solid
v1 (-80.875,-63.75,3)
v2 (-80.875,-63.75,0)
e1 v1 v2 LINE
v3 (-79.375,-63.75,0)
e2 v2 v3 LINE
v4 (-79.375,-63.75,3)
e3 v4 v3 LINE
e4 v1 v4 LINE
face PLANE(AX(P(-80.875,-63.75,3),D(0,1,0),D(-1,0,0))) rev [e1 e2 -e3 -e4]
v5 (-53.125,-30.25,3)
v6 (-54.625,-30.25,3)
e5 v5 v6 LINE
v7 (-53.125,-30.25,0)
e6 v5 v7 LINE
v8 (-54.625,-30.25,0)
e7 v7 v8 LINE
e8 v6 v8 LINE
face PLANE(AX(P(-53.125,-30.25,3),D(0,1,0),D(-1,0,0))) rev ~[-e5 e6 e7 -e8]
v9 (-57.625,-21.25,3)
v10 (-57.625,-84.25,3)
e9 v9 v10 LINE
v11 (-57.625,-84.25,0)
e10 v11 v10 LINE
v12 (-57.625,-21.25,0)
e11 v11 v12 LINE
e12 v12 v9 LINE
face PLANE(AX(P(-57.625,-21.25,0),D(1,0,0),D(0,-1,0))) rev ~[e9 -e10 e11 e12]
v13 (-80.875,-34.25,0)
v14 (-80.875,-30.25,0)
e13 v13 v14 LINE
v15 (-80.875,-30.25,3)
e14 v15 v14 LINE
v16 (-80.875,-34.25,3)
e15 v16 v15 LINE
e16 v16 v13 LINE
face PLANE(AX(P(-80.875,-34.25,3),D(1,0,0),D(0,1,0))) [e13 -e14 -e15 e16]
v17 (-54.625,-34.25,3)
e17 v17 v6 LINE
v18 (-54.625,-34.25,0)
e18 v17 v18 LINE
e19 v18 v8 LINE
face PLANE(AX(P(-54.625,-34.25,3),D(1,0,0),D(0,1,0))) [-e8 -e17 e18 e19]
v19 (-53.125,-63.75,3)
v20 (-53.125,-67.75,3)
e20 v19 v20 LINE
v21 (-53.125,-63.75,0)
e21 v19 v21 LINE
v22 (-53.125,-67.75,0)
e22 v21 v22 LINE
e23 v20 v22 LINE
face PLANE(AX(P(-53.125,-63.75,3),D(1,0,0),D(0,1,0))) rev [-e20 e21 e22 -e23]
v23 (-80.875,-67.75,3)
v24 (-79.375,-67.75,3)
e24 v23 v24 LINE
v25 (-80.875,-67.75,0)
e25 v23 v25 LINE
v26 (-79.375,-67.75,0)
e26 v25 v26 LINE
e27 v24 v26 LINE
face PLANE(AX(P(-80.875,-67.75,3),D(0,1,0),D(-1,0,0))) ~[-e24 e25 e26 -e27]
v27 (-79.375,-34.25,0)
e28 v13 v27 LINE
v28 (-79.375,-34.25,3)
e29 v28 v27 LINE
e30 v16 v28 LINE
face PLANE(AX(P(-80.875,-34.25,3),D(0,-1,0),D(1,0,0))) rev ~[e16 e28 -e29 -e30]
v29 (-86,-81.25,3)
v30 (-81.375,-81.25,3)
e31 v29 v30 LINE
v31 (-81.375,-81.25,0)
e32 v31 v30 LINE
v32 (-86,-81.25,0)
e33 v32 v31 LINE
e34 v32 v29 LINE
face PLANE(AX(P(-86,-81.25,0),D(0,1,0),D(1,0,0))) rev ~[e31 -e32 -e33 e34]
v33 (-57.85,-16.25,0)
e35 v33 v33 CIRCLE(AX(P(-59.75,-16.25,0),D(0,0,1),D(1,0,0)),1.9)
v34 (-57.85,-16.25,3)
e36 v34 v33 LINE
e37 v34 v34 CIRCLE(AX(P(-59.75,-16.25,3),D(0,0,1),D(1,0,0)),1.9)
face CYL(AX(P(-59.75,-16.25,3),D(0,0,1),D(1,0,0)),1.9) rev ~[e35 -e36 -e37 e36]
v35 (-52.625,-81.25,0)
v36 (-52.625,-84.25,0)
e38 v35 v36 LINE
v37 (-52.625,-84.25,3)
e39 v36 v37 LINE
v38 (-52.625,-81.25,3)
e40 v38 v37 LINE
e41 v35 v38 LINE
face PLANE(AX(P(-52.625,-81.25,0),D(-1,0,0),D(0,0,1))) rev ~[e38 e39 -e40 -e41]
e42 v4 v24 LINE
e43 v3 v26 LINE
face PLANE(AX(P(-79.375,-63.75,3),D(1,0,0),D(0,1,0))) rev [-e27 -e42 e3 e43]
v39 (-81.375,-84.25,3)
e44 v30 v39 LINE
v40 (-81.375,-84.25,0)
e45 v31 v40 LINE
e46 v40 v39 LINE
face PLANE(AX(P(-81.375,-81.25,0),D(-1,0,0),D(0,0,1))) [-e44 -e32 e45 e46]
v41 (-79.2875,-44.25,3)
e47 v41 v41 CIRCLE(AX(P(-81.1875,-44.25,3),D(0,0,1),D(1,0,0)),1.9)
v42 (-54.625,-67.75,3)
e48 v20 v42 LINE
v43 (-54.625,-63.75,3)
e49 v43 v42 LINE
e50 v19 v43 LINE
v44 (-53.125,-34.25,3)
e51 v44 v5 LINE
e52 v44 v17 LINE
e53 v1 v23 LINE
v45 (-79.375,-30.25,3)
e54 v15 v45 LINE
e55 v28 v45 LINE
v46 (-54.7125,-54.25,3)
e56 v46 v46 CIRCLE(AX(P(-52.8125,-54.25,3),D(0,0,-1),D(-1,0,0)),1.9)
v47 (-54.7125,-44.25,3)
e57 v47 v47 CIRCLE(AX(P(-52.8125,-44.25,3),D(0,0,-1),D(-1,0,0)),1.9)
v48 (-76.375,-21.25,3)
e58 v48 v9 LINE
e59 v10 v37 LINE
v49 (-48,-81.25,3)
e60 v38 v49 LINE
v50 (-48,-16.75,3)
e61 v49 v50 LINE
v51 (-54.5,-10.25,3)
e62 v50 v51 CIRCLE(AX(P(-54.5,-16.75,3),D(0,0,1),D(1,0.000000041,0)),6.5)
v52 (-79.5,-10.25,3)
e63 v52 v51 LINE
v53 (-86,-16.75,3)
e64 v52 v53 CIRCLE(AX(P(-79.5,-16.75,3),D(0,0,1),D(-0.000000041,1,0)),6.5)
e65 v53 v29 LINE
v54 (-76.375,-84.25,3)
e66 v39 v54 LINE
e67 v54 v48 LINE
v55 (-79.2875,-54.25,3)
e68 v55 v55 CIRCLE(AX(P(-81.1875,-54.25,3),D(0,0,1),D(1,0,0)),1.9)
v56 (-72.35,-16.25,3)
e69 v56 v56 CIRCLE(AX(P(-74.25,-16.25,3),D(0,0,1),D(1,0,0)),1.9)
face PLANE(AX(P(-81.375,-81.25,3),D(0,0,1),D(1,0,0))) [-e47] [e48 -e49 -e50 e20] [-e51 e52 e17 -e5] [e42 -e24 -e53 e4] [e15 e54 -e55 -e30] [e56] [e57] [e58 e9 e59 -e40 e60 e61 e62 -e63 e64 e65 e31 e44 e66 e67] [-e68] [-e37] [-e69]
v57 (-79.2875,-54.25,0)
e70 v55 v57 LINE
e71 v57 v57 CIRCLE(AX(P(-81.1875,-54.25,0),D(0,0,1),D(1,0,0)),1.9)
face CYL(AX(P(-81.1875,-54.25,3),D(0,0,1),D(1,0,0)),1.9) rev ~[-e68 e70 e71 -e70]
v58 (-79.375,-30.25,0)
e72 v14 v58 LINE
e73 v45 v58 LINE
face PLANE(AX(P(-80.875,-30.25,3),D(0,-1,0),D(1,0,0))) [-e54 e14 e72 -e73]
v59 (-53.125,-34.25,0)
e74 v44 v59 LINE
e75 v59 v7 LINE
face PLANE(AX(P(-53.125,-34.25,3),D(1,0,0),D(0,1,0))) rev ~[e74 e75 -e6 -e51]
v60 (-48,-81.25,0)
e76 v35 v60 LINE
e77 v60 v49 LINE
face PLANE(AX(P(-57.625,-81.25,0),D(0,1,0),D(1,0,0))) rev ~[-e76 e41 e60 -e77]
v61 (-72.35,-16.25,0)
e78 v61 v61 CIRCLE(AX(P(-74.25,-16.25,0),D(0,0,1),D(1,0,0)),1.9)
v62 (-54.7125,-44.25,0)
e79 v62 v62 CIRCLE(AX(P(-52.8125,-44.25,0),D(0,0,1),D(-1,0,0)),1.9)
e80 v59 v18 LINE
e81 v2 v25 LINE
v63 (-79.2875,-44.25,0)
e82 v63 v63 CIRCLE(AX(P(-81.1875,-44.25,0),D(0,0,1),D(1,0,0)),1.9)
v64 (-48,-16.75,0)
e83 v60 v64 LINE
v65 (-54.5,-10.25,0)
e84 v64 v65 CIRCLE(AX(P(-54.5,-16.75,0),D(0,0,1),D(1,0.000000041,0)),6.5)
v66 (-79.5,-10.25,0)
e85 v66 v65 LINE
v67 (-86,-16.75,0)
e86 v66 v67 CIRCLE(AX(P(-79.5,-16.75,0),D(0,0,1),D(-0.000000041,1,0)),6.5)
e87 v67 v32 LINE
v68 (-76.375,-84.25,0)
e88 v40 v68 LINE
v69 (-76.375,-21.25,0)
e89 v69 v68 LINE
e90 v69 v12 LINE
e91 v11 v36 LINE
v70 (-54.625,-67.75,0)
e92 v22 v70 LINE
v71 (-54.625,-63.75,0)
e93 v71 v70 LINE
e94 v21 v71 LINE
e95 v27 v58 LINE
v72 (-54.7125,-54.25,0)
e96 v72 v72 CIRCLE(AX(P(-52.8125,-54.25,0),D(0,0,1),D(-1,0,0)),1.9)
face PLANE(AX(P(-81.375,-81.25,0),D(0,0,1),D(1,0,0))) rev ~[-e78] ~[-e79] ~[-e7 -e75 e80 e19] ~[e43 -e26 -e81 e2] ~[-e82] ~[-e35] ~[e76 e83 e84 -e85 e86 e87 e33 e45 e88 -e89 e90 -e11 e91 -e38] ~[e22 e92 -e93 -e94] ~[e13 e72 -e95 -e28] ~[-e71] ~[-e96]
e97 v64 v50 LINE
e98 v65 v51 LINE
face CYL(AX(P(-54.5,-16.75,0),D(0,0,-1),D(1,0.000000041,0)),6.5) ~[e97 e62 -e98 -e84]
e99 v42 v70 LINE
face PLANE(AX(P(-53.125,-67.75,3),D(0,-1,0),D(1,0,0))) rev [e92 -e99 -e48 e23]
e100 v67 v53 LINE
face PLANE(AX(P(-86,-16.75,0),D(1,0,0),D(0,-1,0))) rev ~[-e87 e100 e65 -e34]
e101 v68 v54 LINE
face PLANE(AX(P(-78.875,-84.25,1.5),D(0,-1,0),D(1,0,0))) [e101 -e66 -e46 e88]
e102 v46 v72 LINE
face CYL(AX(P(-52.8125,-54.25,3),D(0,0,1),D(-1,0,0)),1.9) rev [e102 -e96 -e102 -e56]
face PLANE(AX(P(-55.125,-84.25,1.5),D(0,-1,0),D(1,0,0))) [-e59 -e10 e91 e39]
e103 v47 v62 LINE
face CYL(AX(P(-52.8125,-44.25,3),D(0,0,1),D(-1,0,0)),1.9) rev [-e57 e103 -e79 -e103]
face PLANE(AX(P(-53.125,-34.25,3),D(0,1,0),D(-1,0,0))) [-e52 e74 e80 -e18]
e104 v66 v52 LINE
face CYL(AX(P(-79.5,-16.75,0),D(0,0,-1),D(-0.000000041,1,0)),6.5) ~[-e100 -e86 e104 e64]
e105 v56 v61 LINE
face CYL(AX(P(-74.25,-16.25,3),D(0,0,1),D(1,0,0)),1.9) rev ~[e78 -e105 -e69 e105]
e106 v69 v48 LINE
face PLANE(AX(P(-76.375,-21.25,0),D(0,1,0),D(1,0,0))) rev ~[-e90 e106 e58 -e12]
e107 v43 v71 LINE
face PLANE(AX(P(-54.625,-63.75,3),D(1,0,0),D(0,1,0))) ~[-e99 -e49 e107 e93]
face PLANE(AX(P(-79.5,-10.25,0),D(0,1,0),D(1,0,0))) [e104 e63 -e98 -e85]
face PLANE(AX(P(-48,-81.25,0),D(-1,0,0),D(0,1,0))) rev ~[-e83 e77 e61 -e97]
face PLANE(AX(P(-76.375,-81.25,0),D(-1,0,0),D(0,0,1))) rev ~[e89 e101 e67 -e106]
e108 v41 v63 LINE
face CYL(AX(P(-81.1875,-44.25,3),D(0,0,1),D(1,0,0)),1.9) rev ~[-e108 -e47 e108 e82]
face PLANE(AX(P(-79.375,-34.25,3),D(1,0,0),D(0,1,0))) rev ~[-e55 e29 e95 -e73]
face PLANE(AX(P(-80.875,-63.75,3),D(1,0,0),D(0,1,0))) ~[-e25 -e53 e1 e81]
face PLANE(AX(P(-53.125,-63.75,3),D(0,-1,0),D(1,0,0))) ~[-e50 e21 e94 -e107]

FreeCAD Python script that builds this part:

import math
import FreeCAD as App
import Part
import Sketcher

V = App.Vector


def add_polygon(sketch, points):
    """Adds a closed chain of lines whose ends are joined by coincident constraints."""
    first, n = sketch.GeometryCount, len(points)
    for a, b in zip(points, points[1:] + points[:1]):
        sketch.addGeometry(Part.LineSegment(App.Vector(*a, 0), App.Vector(*b, 0)), False)
    for i in range(n):
        sketch.addConstraint(Sketcher.Constraint("Coincident", first + i, 2, first + (i + 1) % n, 1))

doc = App.newDocument("Part")
params = doc.addObject("Spreadsheet::Sheet", "Params")
for row, (alias, value) in enumerate([
    ("sketch1_radius", "6.5 mm"),
    ("sketch1_width", "25 mm"),
    ("sketch1_height", "60 mm"),
    ("sketch1_height2", "64.5 mm"),
    ("sketch1_width2", "18.75 mm"),
    ("pad1_length", "3 mm"),
    ("sketch2_width", "5 mm"),
    ("sketch2_height", "3 mm"),
    ("pad2_length", "3 mm"),
    ("sketch3_height", "4 mm"),
    ("sketch3_width", "1.5 mm"),
    ("sketch4_height", "4 mm"),
    ("sketch4_width", "1.5 mm"),
    ("sketch5_diameter", "3.8 mm"),
    ("sketch6_diameter", "3.8 mm"),
    ("sketch7_diameter", "3.8 mm"),
], start=1):
    params.set(f"A{row}", alias)
    params.set(f"B{row}", "=" + value)
    params.setAlias(f"B{row}", alias)

body = doc.addObject("PartDesign::Body", "Body")

# Sketch on XY plane
sketch1 = body.newObject("Sketcher::SketchObject", "Sketch")
sketch1.AttachmentSupport = (doc.getObject("XY_Plane"), [""])
sketch1.MapMode = "FlatFace"
sketch1.addGeometry([
    Part.LineSegment(V(-19, 32, 0), V(-19, -32, 0)),  # 0
    Part.LineSegment(V(-19, -32, 0), V(-9, -32, 0)),  # 1
    Part.LineSegment(V(-9, -32, 0), V(-9, 28, 0)),  # 2
    Part.LineSegment(V(-9, 28, 0), V(9, 28, 0)),  # 3
    Part.LineSegment(V(9, 28, 0), V(9, -32, 0)),  # 4
    Part.LineSegment(V(9, -32, 0), V(19, -32, 0)),  # 5
    Part.LineSegment(V(19, -32, 0), V(19, 32, 0)),  # 6
    Part.ArcOfCircle(Part.Circle(V(12, 32, 0), V(0, 0, 1), 7), math.radians(0), math.radians(90)),  # 7
    Part.LineSegment(V(12, 39, 0), V(-12, 39, 0)),  # 8
    Part.ArcOfCircle(Part.Circle(V(-12, 32, 0), V(0, 0, 1), 7), math.radians(90), math.radians(180)),  # 9
], False)
sketch1.addConstraint([
    Sketcher.Constraint("Coincident", 0, 2, 1, 1),
    Sketcher.Constraint("Coincident", 1, 2, 2, 1),
    Sketcher.Constraint("Coincident", 2, 2, 3, 1),
    Sketcher.Constraint("Coincident", 3, 2, 4, 1),
    Sketcher.Constraint("Coincident", 4, 2, 5, 1),
    Sketcher.Constraint("Coincident", 5, 2, 6, 1),
    Sketcher.Constraint("Tangent", 6, 2, 7, 1),
    Sketcher.Constraint("Tangent", 7, 2, 8, 1),
    Sketcher.Constraint("Tangent", 8, 2, 9, 1),
    Sketcher.Constraint("Tangent", 9, 2, 0, 1),
    Sketcher.Constraint("Vertical", 0),
    Sketcher.Constraint("Horizontal", 1),
    Sketcher.Constraint("Vertical", 2),
    Sketcher.Constraint("Horizontal", 3),
    Sketcher.Constraint("Vertical", 4),
    Sketcher.Constraint("Horizontal", 5),
    Sketcher.Constraint("Vertical", 6),
    Sketcher.Constraint("Horizontal", 8),
    Sketcher.Constraint("Equal", 7, 9),
    Sketcher.Constraint("Symmetric", 0, 2, 6, 2, -1, 1),
    Sketcher.Constraint("Symmetric", 1, 2, 4, 2, -2),
    Sketcher.Constraint("Radius", 7, 6.5),
    Sketcher.Constraint("DistanceX", 8, 2, 8, 1, 25.0),
    Sketcher.Constraint("DistanceY", 2, 1, 2, 2, 60.0),
    Sketcher.Constraint("DistanceY", 0, 2, 0, 1, 64.5),
    Sketcher.Constraint("DistanceX", 3, 1, 3, 2, 18.75),
])
sketch1.setExpression("Constraints[21]", "Params.sketch1_radius")
sketch1.setExpression("Constraints[22]", "Params.sketch1_width")
sketch1.setExpression("Constraints[23]", "Params.sketch1_height")
sketch1.setExpression("Constraints[24]", "Params.sketch1_height2")
sketch1.setExpression("Constraints[25]", "Params.sketch1_width2")
pad1 = body.newObject("PartDesign::Pad", "Pad")
pad1.Profile = sketch1
pad1.setExpression("Length", "Params.pad1_length")

# Sketch on XZ plane
sketch2 = body.newObject("Sketcher::SketchObject", "Sketch001")
sketch2.AttachmentSupport = (doc.getObject("XZ_Plane"), [""])
sketch2.MapMode = "FlatFace"
sketch2.AttachmentOffset = App.Placement(V(0, 0, 32.25), App.Rotation())
add_polygon(sketch2, [(-14.4, 3), (-14.4, 0), (-9.4, 0), (-9.4, 3)])  # lines 0-3
add_polygon(sketch2, [(9.4, 3), (9.4, 0), (14.4, 0), (14.4, 3)])  # lines 4-7
sketch2.addConstraint([
    Sketcher.Constraint("Vertical", 0),
    Sketcher.Constraint("Horizontal", 1),
    Sketcher.Constraint("Vertical", 2),
    Sketcher.Constraint("Horizontal", 3),
    Sketcher.Constraint("Vertical", 4),
    Sketcher.Constraint("Horizontal", 5),
    Sketcher.Constraint("Vertical", 6),
    Sketcher.Constraint("Horizontal", 7),
    Sketcher.Constraint("Symmetric", 1, 2, 4, 2, -1, 1),
    Sketcher.Constraint("Symmetric", 0, 2, 5, 2, -2),
    Sketcher.Constraint("Horizontal", 3, 2, 6, 2),
    Sketcher.Constraint("DistanceX", 1, 1, 1, 2, 5.0),
    Sketcher.Constraint("DistanceY", 0, 2, 0, 1, 3.0),
    Sketcher.Constraint("DistanceX", 1, 2, 4, 2, 18.75),
])
sketch2.setExpression("Constraints[19]", "Params.sketch2_width")
sketch2.setExpression("Constraints[20]", "Params.sketch2_height")
pad2 = body.newObject("PartDesign::Pad", "Pad001")
pad2.Profile = sketch2
pad2.setExpression("Length", "Params.pad2_length")

# Sketch on XY plane
sketch3 = body.newObject("Sketcher::SketchObject", "Sketch002")
sketch3.AttachmentSupport = (doc.getObject("XY_Plane"), [""])
sketch3.MapMode = "FlatFace"
sketch3.AttachmentOffset = App.Placement(V(0, 0, 3), App.Rotation())
add_polygon(sketch3, [(-13.9, 18.8), (-13.9, 14.8), (-12.4, 14.8), (-12.4, 18.8)])  # lines 0-3
sketch3.addConstraint([
    Sketcher.Constraint("Vertical", 0),
    Sketcher.Constraint("Horizontal", 1),
    Sketcher.Constraint("Vertical", 2),
    Sketcher.Constraint("Horizontal", 3),
    Sketcher.Constraint("DistanceY", 0, 2, 0, 1, 4.0),
    Sketcher.Constraint("DistanceX", 1, 1, 1, 2, 1.5),
    Sketcher.Constraint("DistanceY", -1, 1, 0, 2, 14.75),
    Sketcher.Constraint("DistanceX", 0, 2, -1, 1, 13.875),
])
sketch3.setExpression("Constraints[8]", "Params.sketch3_height")
sketch3.setExpression("Constraints[9]", "Params.sketch3_width")
pocket1 = body.newObject("PartDesign::Pocket", "Pocket")
pocket1.Profile = sketch3
pocket1.Type = "ThroughAll"

# Sketch on XY plane
sketch4 = body.newObject("Sketcher::SketchObject", "Sketch003")
sketch4.AttachmentSupport = (doc.getObject("XY_Plane"), [""])
sketch4.MapMode = "FlatFace"
sketch4.AttachmentOffset = App.Placement(V(0, 0, 3), App.Rotation())
add_polygon(sketch4, [(13.9, 18.8), (13.9, 14.8), (12.4, 14.8), (12.4, 18.8)])  # lines 0-3
sketch4.addConstraint([
    Sketcher.Constraint("Vertical", 0),
    Sketcher.Constraint("Horizontal", 1),
    Sketcher.Constraint("Vertical", 2),
    Sketcher.Constraint("Horizontal", 3),
    Sketcher.Constraint("DistanceY", 0, 2, 0, 1, 4.0),
    Sketcher.Constraint("DistanceX", 1, 2, 1, 1, 1.5),
    Sketcher.Constraint("DistanceY", -1, 1, 0, 2, 14.75),
    Sketcher.Constraint("DistanceX", -1, 1, 0, 2, 13.875),
])
sketch4.setExpression("Constraints[8]", "Params.sketch4_height")
sketch4.setExpression("Constraints[9]", "Params.sketch4_width")
pocket2 = body.newObject("PartDesign::Pocket", "Pocket001")
pocket2.Profile = sketch4
pocket2.Type = "ThroughAll"
doc.recompute()

mirrored = body.newObject("PartDesign::Mirrored", "Mirrored")
mirrored.Originals = [pocket1, pocket2]
mirrored.MirrorPlane = (doc.getObject("XZ_Plane"), [""])
body.Tip = mirrored

# Sketch on XY plane
sketch5 = body.newObject("Sketcher::SketchObject", "Sketch004")
sketch5.AttachmentSupport = (doc.getObject("XY_Plane"), [""])
sketch5.MapMode = "FlatFace"
sketch5.AttachmentOffset = App.Placement(V(0, 0, 3), App.Rotation())
sketch5.addGeometry([
    Part.Circle(V(-7.2, 32.8, 0), V(0, 0, 1), 1.9),
    Part.Circle(V(7.2, 32.8, 0), V(0, 0, 1), 1.9),
], False)
sketch5.addConstraint([
    Sketcher.Constraint("Equal", 0, 1),
    Sketcher.Constraint("Symmetric", 0, 3, 1, 3, -2),
    Sketcher.Constraint("Diameter", 0, 3.8),
    Sketcher.Constraint("DistanceX", 0, 3, 1, 3, 14.5),
    Sketcher.Constraint("DistanceY", -1, 1, 0, 3, 32.75),
])
sketch5.setExpression("Constraints[2]", "Params.sketch5_diameter")
pocket3 = body.newObject("PartDesign::Pocket", "Pocket002")
pocket3.Profile = sketch5
pocket3.Type = "ThroughAll"

# Sketch on XY plane
sketch6 = body.newObject("Sketcher::SketchObject", "Sketch005")
sketch6.AttachmentSupport = (doc.getObject("XY_Plane"), [""])
sketch6.MapMode = "FlatFace"
sketch6.AttachmentOffset = App.Placement(V(0, 0, 3), App.Rotation())
sketch6.addGeometry(Part.Circle(V(-14.2, -5.2, 0), V(0, 0, 1), 1.9), False)
sketch6.addConstraint([
    Sketcher.Constraint("Diameter", 0, 3.8),
    Sketcher.Constraint("DistanceY", 0, 3, -1, 1, 5.25),
    Sketcher.Constraint("DistanceX", 0, 3, -1, 1, 14.1875),
])
sketch6.setExpression("Constraints[0]", "Params.sketch6_diameter")
pocket4 = body.newObject("PartDesign::Pocket", "Pocket003")
pocket4.Profile = sketch6
pocket4.Type = "ThroughAll"
doc.recompute()

mirrored2 = body.newObject("PartDesign::Mirrored", "Mirrored001")
mirrored2.Originals = [pocket4]
mirrored2.MirrorPlane = (doc.getObject("YZ_Plane"), [""])
body.Tip = mirrored2

# Sketch on XY plane
sketch7 = body.newObject("Sketcher::SketchObject", "Sketch006")
sketch7.AttachmentSupport = (doc.getObject("XY_Plane"), [""])
sketch7.MapMode = "FlatFace"
sketch7.AttachmentOffset = App.Placement(V(0, 0, 3), App.Rotation())
sketch7.addGeometry(Part.Circle(V(-14.2, 4.8, 0), V(0, 0, 1), 1.9), False)
sketch7.addConstraint([
    Sketcher.Constraint("Diameter", 0, 3.8),
    Sketcher.Constraint("DistanceY", -1, 1, 0, 3, 4.75),
    Sketcher.Constraint("DistanceX", 0, 3, -1, 1, 14.1875),
])
sketch7.setExpression("Constraints[0]", "Params.sketch7_diameter")
pocket5 = body.newObject("PartDesign::Pocket", "Pocket004")
pocket5.Profile = sketch7
pocket5.Type = "ThroughAll"
doc.recompute()

mirrored3 = body.newObject("PartDesign::Mirrored", "Mirrored002")
mirrored3.Originals = [pocket5]
mirrored3.MirrorPlane = (doc.getObject("YZ_Plane"), [""])
body.Tip = mirrored3
body2 = doc.addObject("PartDesign::Body", "Body001")
doc.recompute()

body.Placement = App.Placement(V(-67, -49, 0), App.Rotation(V(0, 0, 1), 0))
boolean = body2.newObject("PartDesign::Boolean", "Boolean")
boolean.Type = "Fuse"
boolean.addObjects([body])

doc.recompute()
